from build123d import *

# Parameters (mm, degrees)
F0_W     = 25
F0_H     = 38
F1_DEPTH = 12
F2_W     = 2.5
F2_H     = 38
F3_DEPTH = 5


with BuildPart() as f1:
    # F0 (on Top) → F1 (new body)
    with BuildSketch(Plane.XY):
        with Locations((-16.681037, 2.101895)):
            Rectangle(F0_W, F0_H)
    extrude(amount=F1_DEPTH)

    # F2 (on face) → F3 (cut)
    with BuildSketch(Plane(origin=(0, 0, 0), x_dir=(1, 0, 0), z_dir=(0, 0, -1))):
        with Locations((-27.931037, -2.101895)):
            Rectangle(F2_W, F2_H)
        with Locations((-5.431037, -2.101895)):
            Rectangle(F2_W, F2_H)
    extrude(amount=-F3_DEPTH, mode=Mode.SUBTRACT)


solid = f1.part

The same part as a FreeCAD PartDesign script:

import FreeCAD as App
import Part
import Sketcher

V = App.Vector


def add_polygon(sketch, points):
    """Adds a closed chain of lines whose ends are joined by coincident constraints."""
    first, n = sketch.GeometryCount, len(points)
    for a, b in zip(points, points[1:] + points[:1]):
        sketch.addGeometry(Part.LineSegment(App.Vector(*a, 0), App.Vector(*b, 0)), False)
    for i in range(n):
        sketch.addConstraint(Sketcher.Constraint("Coincident", first + i, 2, first + (i + 1) % n, 1))

doc = App.newDocument("Part")
body = doc.addObject("PartDesign::Body", "Body")

sketch1 = doc.addObject("Sketcher::SketchObject", "Sketch")
body.addObject(sketch1)
sketch1.AttachmentSupport = (doc.XY_Plane, [""])
sketch1.MapMode = "FlatFace"
add_polygon(sketch1, [(-29, 21), (-29, -17), (-4, -17), (-4, 21)])
sketch1.addConstraint(Sketcher.Constraint("Vertical", 0))
sketch1.addConstraint(Sketcher.Constraint("Horizontal", 1))
sketch1.addConstraint(Sketcher.Constraint("Vertical", 2))
sketch1.addConstraint(Sketcher.Constraint("Horizontal", 3))
sketch1.addConstraint(Sketcher.Constraint("DistanceX", 1, 1, 1, 2, 25.0))
sketch1.addConstraint(Sketcher.Constraint("DistanceY", 0, 2, 0, 1, 38.0))
sketch1.addConstraint(Sketcher.Constraint("DistanceX", 0, 2, -1, 1, 29.181037))
sketch1.addConstraint(Sketcher.Constraint("DistanceY", 0, 2, -1, 1, 16.898105))
pad1 = doc.addObject("PartDesign::Pad", "Pad")
body.addObject(pad1)
pad1.Profile = sketch1
pad1.Length = 12

sketch2 = doc.addObject("Sketcher::SketchObject", "Sketch001")
body.addObject(sketch2)
sketch2.AttachmentSupport = (doc.XY_Plane, [""])
sketch2.MapMode = "FlatFace"
add_polygon(sketch2, [(-29.2, -16.9), (-29.2, 21.1), (-26.7, 21.1), (-26.7, -16.9)])
add_polygon(sketch2, [(-6.7, -16.9), (-6.7, 21.1), (-4.2, 21.1), (-4.2, -16.9)])
sketch2.addConstraint(Sketcher.Constraint("Vertical", 0))
sketch2.addConstraint(Sketcher.Constraint("Horizontal", 1))
sketch2.addConstraint(Sketcher.Constraint("Vertical", 2))
sketch2.addConstraint(Sketcher.Constraint("Horizontal", 3))
sketch2.addConstraint(Sketcher.Constraint("Vertical", 4))
sketch2.addConstraint(Sketcher.Constraint("Horizontal", 5))
sketch2.addConstraint(Sketcher.Constraint("Vertical", 6))
sketch2.addConstraint(Sketcher.Constraint("Horizontal", 7))
sketch2.addConstraint(Sketcher.Constraint("Horizontal", 1, 2, 4, 2))
sketch2.addConstraint(Sketcher.Constraint("Horizontal", 3, 2, 6, 2))
sketch2.addConstraint(Sketcher.Constraint("Equal", 3, 5))
sketch2.addConstraint(Sketcher.Constraint("DistanceY", 0, 1, 0, 2, 38.0))
sketch2.addConstraint(Sketcher.Constraint("DistanceX", 1, 1, 1, 2, 2.5))
sketch2.addConstraint(Sketcher.Constraint("DistanceX", 1, 2, 4, 2, 20.0))
sketch2.addConstraint(Sketcher.Constraint("DistanceX", 0, 2, -1, 1, 29.181037))
sketch2.addConstraint(Sketcher.Constraint("DistanceY", -1, 1, 0, 2, 21.101895))
pocket1 = doc.addObject("PartDesign::Pocket", "Pocket")
body.addObject(pocket1)
pocket1.Profile = sketch2
pocket1.Length = 5
pocket1.Reversed = True

doc.recompute()
